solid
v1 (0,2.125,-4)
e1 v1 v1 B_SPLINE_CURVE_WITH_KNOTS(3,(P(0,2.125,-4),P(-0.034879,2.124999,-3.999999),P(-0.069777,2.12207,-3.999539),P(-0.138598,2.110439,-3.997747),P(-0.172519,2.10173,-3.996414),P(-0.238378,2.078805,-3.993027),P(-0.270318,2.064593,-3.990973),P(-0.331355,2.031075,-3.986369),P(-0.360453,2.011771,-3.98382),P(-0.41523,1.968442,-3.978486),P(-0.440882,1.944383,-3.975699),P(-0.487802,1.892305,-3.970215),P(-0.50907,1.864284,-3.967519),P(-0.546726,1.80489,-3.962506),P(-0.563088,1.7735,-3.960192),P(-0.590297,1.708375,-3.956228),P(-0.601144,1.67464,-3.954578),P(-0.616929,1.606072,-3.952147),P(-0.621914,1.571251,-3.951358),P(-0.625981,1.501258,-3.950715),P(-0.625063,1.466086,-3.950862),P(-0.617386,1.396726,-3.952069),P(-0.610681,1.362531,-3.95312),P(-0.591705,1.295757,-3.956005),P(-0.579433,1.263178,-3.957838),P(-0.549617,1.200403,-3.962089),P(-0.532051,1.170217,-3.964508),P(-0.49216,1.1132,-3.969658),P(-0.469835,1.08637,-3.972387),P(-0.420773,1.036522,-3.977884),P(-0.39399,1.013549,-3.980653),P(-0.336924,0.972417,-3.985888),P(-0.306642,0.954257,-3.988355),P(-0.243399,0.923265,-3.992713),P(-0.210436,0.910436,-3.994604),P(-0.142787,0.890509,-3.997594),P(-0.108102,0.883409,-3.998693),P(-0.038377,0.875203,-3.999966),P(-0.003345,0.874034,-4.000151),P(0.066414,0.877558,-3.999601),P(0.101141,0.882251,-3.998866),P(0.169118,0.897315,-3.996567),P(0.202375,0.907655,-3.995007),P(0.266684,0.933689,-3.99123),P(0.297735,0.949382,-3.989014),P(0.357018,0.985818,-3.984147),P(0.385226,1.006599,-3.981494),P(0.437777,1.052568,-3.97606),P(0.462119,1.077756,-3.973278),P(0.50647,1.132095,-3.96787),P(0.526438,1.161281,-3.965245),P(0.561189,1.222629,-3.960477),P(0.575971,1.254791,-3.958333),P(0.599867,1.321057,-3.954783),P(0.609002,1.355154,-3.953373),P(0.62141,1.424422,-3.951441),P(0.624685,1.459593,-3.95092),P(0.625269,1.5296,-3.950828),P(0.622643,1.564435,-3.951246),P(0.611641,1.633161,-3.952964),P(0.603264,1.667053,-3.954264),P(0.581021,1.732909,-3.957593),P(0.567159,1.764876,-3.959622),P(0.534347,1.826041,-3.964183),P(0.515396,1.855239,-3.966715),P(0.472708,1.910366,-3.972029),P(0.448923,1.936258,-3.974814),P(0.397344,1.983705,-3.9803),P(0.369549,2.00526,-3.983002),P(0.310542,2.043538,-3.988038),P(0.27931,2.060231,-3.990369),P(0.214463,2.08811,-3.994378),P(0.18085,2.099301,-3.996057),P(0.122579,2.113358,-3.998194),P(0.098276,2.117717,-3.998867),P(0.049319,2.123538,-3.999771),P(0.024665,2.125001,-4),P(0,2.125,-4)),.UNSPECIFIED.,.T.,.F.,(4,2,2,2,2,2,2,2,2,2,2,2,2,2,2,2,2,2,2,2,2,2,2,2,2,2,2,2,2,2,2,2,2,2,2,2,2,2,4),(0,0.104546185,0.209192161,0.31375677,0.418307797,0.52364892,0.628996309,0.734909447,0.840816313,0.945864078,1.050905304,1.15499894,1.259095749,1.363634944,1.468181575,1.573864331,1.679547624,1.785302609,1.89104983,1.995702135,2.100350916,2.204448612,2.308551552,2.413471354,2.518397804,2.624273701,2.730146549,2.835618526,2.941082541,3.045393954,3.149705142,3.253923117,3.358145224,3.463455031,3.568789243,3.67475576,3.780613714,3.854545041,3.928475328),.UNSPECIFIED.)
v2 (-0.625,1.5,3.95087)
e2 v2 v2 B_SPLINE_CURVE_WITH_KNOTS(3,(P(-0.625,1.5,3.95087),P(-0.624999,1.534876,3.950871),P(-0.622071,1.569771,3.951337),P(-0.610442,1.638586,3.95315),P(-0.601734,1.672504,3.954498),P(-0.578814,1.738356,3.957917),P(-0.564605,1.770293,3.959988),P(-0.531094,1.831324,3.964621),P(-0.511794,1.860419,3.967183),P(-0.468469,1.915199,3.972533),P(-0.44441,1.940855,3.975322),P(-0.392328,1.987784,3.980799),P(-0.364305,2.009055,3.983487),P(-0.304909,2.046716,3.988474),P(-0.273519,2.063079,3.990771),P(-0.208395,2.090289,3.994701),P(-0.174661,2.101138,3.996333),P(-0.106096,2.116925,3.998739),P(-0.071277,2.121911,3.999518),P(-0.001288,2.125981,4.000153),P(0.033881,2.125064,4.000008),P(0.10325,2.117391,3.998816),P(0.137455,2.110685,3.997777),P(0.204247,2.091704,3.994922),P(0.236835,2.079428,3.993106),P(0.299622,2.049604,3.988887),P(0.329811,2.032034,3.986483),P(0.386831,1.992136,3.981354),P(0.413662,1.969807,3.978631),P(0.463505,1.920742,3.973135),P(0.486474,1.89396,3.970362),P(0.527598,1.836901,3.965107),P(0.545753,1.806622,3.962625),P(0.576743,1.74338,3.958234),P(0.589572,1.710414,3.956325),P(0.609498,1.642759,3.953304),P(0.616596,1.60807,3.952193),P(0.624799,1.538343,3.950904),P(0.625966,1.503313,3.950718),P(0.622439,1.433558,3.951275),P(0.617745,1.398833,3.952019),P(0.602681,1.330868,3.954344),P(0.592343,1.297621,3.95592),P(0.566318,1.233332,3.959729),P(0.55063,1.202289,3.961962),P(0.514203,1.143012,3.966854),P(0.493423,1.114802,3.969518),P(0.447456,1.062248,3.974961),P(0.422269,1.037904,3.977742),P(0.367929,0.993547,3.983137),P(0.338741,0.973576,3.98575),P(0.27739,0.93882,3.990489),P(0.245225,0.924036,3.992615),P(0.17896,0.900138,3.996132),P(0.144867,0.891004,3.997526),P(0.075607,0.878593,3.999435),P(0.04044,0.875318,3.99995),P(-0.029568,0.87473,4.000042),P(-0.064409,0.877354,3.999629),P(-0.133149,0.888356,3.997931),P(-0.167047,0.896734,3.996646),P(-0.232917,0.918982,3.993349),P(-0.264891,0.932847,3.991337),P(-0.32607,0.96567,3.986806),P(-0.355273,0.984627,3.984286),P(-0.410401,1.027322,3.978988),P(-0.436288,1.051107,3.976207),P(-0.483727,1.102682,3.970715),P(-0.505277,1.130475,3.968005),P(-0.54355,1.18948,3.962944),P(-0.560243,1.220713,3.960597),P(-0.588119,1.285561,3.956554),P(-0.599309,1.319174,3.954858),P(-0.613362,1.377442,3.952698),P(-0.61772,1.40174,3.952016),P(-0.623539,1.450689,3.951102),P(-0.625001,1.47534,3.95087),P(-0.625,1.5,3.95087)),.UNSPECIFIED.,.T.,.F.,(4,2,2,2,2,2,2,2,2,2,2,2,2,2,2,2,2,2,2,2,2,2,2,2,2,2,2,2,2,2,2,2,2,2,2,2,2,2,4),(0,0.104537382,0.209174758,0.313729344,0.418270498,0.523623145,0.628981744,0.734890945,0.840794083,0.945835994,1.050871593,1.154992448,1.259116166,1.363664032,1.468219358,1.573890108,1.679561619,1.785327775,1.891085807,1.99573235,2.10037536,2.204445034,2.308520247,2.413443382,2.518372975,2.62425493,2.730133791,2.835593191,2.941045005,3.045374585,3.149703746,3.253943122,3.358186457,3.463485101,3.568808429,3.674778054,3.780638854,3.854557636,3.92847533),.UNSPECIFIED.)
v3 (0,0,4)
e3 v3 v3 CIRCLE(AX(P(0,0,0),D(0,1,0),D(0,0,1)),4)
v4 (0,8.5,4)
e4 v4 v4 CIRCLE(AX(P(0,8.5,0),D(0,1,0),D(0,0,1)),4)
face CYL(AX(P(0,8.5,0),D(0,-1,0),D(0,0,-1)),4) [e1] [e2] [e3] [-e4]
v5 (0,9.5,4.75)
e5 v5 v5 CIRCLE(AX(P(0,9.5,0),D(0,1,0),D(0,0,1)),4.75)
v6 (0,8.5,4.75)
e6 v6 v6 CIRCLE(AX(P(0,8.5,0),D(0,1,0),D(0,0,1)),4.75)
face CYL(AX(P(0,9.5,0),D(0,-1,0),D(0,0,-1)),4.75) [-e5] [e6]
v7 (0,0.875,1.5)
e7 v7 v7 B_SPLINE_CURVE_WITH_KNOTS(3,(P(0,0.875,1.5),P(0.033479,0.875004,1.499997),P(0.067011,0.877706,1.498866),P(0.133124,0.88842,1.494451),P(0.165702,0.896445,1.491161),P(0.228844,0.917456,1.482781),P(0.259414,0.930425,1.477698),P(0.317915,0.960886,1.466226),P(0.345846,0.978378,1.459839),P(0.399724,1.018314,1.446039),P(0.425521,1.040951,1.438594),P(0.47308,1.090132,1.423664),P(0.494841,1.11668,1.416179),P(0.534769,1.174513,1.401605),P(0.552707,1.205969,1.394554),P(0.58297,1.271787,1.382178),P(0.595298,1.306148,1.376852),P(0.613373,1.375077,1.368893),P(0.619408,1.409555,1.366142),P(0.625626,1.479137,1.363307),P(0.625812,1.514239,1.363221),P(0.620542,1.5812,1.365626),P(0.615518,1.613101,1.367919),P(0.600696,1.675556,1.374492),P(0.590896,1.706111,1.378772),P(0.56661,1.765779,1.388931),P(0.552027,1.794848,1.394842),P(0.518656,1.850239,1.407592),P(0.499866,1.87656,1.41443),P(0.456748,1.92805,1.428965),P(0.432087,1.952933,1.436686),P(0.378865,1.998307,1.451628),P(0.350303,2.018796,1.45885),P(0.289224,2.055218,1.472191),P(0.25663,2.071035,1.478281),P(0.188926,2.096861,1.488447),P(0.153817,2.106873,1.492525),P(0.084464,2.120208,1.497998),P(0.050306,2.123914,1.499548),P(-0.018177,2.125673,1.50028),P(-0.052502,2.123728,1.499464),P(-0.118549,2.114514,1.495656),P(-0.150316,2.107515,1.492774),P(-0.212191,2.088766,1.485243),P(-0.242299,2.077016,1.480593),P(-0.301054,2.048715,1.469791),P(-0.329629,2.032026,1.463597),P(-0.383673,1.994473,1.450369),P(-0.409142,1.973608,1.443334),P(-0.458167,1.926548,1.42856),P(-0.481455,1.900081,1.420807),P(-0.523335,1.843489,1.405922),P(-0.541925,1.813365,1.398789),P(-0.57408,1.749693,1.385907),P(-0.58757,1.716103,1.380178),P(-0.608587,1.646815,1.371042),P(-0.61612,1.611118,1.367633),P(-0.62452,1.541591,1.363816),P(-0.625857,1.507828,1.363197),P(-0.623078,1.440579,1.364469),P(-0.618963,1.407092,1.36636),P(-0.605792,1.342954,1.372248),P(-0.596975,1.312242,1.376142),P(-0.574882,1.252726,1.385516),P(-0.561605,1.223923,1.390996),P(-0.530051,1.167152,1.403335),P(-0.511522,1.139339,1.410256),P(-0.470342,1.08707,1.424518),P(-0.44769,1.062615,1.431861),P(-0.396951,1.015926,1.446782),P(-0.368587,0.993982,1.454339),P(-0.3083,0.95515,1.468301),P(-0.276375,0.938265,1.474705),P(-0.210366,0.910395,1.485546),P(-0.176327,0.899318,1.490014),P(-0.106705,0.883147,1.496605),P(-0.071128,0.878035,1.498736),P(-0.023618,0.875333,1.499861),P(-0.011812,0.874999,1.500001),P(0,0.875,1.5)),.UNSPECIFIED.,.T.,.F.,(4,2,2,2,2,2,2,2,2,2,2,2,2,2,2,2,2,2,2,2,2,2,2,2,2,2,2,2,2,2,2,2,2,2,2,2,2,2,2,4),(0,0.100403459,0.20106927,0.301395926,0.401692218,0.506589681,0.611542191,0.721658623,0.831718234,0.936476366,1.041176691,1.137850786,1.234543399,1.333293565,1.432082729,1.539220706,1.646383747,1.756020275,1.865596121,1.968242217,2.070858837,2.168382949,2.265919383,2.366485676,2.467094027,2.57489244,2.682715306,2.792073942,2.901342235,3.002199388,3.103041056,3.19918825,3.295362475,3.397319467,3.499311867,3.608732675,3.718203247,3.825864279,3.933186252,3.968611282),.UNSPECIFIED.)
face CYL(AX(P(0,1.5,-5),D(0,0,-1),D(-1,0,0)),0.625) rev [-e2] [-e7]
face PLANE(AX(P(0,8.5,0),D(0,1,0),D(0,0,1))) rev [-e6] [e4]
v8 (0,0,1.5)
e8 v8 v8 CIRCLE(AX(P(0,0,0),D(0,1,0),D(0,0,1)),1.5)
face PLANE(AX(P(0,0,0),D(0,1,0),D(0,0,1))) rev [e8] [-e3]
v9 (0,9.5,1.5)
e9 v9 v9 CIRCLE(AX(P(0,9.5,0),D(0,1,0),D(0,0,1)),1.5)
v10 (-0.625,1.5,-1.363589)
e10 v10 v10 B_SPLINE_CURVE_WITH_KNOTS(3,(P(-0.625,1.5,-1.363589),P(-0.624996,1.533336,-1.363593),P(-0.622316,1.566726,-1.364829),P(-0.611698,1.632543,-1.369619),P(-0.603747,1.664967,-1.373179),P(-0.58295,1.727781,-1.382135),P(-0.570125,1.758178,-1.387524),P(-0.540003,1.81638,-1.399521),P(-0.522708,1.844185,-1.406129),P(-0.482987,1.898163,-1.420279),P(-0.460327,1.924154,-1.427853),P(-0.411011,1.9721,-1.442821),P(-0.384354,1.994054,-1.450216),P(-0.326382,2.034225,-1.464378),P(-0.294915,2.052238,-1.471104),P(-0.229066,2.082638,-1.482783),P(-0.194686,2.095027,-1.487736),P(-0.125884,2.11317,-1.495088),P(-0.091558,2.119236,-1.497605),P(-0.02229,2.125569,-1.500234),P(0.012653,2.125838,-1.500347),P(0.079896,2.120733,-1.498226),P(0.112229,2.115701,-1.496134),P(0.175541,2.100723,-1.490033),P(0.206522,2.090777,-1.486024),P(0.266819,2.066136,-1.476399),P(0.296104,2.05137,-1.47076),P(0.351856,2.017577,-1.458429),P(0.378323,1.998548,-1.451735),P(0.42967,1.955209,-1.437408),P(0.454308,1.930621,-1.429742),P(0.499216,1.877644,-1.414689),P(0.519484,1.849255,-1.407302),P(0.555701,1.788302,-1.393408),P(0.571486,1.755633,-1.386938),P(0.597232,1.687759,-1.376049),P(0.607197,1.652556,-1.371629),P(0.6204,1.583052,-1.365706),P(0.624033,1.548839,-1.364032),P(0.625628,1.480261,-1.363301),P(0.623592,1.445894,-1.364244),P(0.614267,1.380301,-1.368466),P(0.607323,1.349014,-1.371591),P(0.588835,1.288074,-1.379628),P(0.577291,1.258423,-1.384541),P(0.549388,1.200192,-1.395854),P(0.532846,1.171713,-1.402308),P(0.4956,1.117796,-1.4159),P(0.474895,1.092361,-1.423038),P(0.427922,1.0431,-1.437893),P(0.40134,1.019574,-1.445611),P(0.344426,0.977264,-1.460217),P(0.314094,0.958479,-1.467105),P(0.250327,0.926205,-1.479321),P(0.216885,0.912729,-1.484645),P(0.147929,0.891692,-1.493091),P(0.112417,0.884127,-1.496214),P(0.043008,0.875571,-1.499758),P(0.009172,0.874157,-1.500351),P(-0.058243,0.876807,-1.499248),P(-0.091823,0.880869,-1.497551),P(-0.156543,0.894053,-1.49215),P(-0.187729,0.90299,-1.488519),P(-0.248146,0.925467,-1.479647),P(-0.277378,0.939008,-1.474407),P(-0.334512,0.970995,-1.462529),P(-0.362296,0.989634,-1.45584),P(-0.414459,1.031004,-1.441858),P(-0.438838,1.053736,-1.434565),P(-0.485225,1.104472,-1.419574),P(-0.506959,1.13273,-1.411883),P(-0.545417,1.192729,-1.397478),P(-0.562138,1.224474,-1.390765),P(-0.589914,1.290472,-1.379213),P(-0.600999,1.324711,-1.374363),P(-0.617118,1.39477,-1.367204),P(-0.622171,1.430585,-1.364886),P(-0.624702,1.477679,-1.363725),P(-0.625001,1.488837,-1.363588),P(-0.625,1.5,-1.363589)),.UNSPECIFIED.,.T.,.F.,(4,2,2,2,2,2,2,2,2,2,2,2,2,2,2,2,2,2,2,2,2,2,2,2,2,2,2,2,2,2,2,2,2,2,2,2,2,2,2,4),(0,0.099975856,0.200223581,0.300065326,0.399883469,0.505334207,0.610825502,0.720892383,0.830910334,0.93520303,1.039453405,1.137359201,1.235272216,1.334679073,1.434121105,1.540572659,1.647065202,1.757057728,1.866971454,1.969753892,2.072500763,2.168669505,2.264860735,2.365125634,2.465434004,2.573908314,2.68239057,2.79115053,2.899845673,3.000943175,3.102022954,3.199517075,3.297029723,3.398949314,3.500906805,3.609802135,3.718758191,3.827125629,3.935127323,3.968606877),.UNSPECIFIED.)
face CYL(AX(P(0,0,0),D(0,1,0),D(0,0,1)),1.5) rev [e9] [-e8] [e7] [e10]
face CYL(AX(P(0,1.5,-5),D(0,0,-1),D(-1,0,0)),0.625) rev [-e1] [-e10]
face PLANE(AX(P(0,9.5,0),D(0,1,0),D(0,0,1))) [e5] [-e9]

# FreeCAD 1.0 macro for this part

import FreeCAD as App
import Part
import Sketcher

V = App.Vector
Q = App.Units.Quantity

doc = App.newDocument("Part")
body = doc.addObject("PartDesign::Body", "Body")

# Sketch on XZ plane
sketch1 = doc.addObject("Sketcher::SketchObject", "Sketch")
body.addObject(sketch1)
sketch1.AttachmentSupport = (doc.XZ_Plane, [""])
sketch1.MapMode = "FlatFace"
sketch1.addGeometry(Part.Circle(V(0, 0, 0), V(0, 0, 1), 4), False)
sketch1.addConstraint([
    Sketcher.Constraint("Coincident", 0, 3, -1, 1),
    Sketcher.Constraint("Diameter", 0, Q("8 mm")),
])
pad1 = doc.addObject("PartDesign::Pad", "Pad")
body.addObject(pad1)
pad1.Profile = sketch1
pad1.Length = 8.5
pad1.Reversed = True

# Sketch on XZ plane
sketch2 = doc.addObject("Sketcher::SketchObject", "Sketch001")
body.addObject(sketch2)
sketch2.AttachmentSupport = (doc.XZ_Plane, [""])
sketch2.MapMode = "FlatFace"
sketch2.AttachmentOffset = App.Placement(V(0, 0, -8.5), App.Rotation())
sketch2.addGeometry(Part.Circle(V(0, 0, 0), V(0, 0, 1), 4.8), False)
sketch2.addConstraint([
    Sketcher.Constraint("Coincident", 0, 3, -1, 1),
    Sketcher.Constraint("Diameter", 0, Q("9.5 mm")),
])
pad2 = doc.addObject("PartDesign::Pad", "Pad001")
body.addObject(pad2)
pad2.Profile = sketch2
pad2.Length = 1
pad2.Reversed = True

# Sketch on XZ plane
sketch3 = doc.addObject("Sketcher::SketchObject", "Sketch002")
body.addObject(sketch3)
sketch3.AttachmentSupport = (doc.XZ_Plane, [""])
sketch3.MapMode = "FlatFace"
sketch3.AttachmentOffset = App.Placement(V(0, 0, -9.5), App.Rotation())
sketch3.addGeometry(Part.Circle(V(0, 0, 0), V(0, 0, 1), 1.5), False)
sketch3.addConstraint([
    Sketcher.Constraint("Coincident", 0, 3, -1, 1),
    Sketcher.Constraint("Diameter", 0, Q("3 mm")),
])
pocket1 = doc.addObject("PartDesign::Pocket", "Pocket")
body.addObject(pocket1)
pocket1.Profile = sketch3
pocket1.Type = "ThroughAll"
pocket1.Reversed = True

# Sketch on XY plane
sketch4 = doc.addObject("Sketcher::SketchObject", "Sketch003")
body.addObject(sketch4)
sketch4.AttachmentSupport = (doc.XY_Plane, [""])
sketch4.MapMode = "FlatFace"
sketch4.AttachmentOffset = App.Placement(V(0, 0, -5), App.Rotation())
sketch4.addGeometry(Part.Circle(V(0, 1.5, 0), V(0, 0, 1), 0.6), False)
sketch4.addConstraint([
    Sketcher.Constraint("PointOnObject", 0, 3, -2),
    Sketcher.Constraint("Diameter", 0, Q("1.25 mm")),
    Sketcher.Constraint("DistanceY", -1, 1, 0, 3, Q("1.5 mm")),
])
doc.recompute()
hole = doc.addObject("PartDesign::Hole", "Hole")
body.addObject(hole)
hole.Profile = sketch4
hole.ThreadType = "None"
hole.Diameter = 1.25
hole.DepthType = "ThroughAll"
hole.Reversed = True

doc.recompute()
